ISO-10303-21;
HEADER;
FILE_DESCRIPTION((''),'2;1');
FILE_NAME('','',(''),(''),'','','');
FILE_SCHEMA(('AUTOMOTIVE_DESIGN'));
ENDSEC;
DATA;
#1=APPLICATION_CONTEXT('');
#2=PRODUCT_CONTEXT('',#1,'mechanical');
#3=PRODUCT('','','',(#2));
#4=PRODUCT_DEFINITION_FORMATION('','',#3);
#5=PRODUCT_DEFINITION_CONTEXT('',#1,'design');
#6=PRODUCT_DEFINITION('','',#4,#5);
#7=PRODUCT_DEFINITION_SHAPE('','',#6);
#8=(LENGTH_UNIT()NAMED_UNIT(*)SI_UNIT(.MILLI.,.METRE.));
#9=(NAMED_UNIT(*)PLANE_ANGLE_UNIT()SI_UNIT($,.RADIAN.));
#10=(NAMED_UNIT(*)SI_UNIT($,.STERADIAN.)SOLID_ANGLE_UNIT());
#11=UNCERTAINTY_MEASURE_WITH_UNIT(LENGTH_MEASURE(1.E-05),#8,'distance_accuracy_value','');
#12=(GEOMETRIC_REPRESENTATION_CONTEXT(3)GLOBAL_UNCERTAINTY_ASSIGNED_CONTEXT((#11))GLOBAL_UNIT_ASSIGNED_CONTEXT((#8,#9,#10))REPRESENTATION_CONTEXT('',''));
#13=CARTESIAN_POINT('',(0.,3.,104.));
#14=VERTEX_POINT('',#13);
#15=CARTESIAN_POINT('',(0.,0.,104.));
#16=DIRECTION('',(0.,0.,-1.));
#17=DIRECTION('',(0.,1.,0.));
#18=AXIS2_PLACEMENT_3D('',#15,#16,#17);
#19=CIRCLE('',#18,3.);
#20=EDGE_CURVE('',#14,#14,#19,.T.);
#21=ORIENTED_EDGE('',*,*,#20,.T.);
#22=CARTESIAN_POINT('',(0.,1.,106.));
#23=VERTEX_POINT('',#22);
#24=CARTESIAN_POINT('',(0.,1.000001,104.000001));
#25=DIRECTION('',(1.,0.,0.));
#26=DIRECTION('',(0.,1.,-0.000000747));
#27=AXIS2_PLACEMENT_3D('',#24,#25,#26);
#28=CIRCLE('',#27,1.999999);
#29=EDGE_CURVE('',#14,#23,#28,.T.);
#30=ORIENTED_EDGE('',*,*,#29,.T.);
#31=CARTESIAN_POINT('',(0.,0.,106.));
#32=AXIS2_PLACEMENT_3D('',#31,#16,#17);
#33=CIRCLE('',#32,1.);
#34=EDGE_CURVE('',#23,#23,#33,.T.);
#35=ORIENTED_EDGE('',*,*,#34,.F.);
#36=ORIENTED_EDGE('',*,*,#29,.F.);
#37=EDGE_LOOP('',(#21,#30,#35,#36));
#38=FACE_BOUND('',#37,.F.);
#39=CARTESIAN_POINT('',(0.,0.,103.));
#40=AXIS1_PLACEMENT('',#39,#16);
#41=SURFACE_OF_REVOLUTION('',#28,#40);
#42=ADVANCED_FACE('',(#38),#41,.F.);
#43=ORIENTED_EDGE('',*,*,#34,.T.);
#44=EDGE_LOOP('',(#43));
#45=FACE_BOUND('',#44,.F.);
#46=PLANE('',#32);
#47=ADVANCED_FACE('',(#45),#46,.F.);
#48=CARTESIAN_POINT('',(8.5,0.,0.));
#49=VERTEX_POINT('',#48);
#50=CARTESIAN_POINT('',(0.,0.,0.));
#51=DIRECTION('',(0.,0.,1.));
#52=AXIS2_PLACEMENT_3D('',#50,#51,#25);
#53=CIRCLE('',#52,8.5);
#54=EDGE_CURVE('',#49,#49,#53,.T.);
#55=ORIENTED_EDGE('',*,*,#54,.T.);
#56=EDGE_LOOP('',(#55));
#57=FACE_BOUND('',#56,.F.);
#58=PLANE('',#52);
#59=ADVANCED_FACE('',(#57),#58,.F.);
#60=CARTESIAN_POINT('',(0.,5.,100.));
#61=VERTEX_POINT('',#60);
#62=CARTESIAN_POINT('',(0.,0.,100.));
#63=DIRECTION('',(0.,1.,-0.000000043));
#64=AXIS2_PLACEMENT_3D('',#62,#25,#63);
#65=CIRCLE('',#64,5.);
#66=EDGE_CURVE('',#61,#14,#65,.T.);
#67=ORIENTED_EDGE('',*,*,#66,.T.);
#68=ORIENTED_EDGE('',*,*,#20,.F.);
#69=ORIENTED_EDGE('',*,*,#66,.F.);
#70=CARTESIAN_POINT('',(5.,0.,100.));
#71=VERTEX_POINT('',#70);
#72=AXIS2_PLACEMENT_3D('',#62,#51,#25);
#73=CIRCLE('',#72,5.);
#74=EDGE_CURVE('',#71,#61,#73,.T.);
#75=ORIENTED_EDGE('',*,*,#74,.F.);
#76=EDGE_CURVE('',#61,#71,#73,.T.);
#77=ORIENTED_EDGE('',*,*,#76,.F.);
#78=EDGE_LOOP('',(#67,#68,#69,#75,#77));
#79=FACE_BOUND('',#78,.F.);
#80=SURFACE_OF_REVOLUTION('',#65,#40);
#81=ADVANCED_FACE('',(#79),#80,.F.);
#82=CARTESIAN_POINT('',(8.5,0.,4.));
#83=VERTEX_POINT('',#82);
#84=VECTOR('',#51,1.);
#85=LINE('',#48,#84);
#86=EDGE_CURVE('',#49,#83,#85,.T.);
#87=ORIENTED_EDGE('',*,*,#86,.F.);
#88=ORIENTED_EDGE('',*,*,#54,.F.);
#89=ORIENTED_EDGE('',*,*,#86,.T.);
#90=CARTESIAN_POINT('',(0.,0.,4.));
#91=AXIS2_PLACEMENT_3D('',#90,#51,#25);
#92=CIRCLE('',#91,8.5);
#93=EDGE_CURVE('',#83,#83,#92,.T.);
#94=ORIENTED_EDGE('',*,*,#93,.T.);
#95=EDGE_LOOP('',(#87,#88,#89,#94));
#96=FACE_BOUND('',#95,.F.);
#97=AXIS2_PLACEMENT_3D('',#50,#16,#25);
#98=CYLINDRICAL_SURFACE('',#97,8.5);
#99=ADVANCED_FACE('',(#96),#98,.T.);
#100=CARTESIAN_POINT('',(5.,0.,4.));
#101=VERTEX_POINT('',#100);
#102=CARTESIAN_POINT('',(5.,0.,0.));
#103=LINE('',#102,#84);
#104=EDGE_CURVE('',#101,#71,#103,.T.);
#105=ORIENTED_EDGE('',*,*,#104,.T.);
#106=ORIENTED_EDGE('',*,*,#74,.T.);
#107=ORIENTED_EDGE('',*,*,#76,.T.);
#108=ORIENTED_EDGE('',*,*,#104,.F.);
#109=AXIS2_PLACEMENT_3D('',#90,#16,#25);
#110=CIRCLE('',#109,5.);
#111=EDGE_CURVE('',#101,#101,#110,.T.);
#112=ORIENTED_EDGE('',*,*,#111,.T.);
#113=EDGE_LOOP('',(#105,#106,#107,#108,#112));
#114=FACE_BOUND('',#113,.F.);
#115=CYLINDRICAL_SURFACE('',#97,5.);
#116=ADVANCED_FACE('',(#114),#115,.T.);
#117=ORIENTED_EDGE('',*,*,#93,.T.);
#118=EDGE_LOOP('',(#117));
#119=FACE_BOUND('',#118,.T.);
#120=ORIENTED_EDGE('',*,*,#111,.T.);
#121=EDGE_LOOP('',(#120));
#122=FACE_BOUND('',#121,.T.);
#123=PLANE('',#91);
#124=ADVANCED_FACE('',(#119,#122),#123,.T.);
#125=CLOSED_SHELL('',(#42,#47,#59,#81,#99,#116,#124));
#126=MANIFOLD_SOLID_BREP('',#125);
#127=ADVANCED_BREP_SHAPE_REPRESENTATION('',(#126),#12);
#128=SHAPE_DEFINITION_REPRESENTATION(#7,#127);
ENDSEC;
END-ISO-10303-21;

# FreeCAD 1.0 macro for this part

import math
import FreeCAD as App
import Part
import Sketcher
from FreeCAD import Vector

doc = App.newDocument("Part")
params = doc.addObject("Spreadsheet::Sheet", "Params")
for row, (alias, value) in enumerate([
    ("sketch1_diameter", "17 mm"),
    ("pad1_length", "4 mm"),
    ("sketch2_diameter", "10 mm"),
    ("pad2_length", "100 mm"),
    ("sketch3_radius", "5 mm"),
    ("sketch3_radius2", "1.999999 mm"),
    ("sketch3_width", "1 mm"),
    ("revolution_angle", "360 deg"),
], start=1):
    params.set(f"A{row}", alias)
    params.set(f"B{row}", "=" + value)
    params.setAlias(f"B{row}", alias)

body = doc.addObject("PartDesign::Body", "Body")

sketch1 = body.newObject("Sketcher::SketchObject", "Sketch")
sketch1.AttachmentSupport = (doc.getObject("XY_Plane"), [""])
sketch1.MapMode = "FlatFace"
sketch1.addGeometry(Part.Circle(Vector(0, 0, 0), Vector(0, 0, 1), 8.5), False)
sketch1.addConstraint(Sketcher.Constraint("Coincident", 0, 3, -1, 1))
sketch1.addConstraint(Sketcher.Constraint("Diameter", 0, 17.0))
sketch1.setExpression("Constraints[1]", "Params.sketch1_diameter")
pad1 = body.newObject("PartDesign::Pad", "Pad")
pad1.Profile = sketch1
pad1.setExpression("Length", "Params.pad1_length")

sketch2 = body.newObject("Sketcher::SketchObject", "Sketch001")
sketch2.AttachmentSupport = (doc.getObject("XY_Plane"), [""])
sketch2.MapMode = "FlatFace"
sketch2.addGeometry(Part.Circle(Vector(0, 0, 0), Vector(0, 0, 1), 5), False)
sketch2.addConstraint(Sketcher.Constraint("Coincident", 0, 3, -1, 1))
sketch2.addConstraint(Sketcher.Constraint("Diameter", 0, 10.0))
sketch2.setExpression("Constraints[1]", "Params.sketch2_diameter")
pad2 = body.newObject("PartDesign::Pad", "Pad001")
pad2.Profile = sketch2
pad2.setExpression("Length", "Params.pad2_length")

sketch3 = body.newObject("Sketcher::SketchObject", "Sketch002")
sketch3.AttachmentSupport = (doc.getObject("YZ_Plane"), [""])
sketch3.MapMode = "FlatFace"
sketch3.addGeometry(Part.LineSegment(Vector(0, 100, 0), Vector(5, 100, 0)), False)
sketch3.addGeometry(Part.ArcOfCircle(Part.Circle(Vector(0, 100, 0), Vector(0, 0, 1), 5), math.radians(-0.000002), math.radians(53.130105)), False)
sketch3.addGeometry(Part.ArcOfCircle(Part.Circle(Vector(1.000001, 104.000001, 0), Vector(0, 0, 1), 1.999999), math.radians(-0.000043), math.radians(90.000043)), False)
sketch3.addGeometry(Part.LineSegment(Vector(1, 106, 0), Vector(0, 106, 0)), False)
sketch3.addGeometry(Part.LineSegment(Vector(0, 106, 0), Vector(0, 100, 0)), False)
sketch3.addConstraint(Sketcher.Constraint("Coincident", 0, 2, 1, 1))
sketch3.addConstraint(Sketcher.Constraint("Coincident", 1, 2, 2, 1))
sketch3.addConstraint(Sketcher.Constraint("Tangent", 2, 2, 3, 1))
sketch3.addConstraint(Sketcher.Constraint("Coincident", 3, 2, 4, 1))
sketch3.addConstraint(Sketcher.Constraint("Coincident", 4, 2, 0, 1))
sketch3.addConstraint(Sketcher.Constraint("Horizontal", 0))
sketch3.addConstraint(Sketcher.Constraint("Horizontal", 3))
sketch3.addConstraint(Sketcher.Constraint("Vertical", 4))
sketch3.addConstraint(Sketcher.Constraint("Coincident", 4, 2, 1, 3))
sketch3.addConstraint(Sketcher.Constraint("PointOnObject", 1, 3, -2))
sketch3.addConstraint(Sketcher.Constraint("Horizontal", 2, 3, 1, 2))
sketch3.addConstraint(Sketcher.Constraint("Radius", 1, 5.0))
sketch3.addConstraint(Sketcher.Constraint("Radius", 2, 1.999999))
sketch3.addConstraint(Sketcher.Constraint("DistanceX", 3, 2, 3, 1, 1.0))
sketch3.addConstraint(Sketcher.Constraint("DistanceY", -1, 1, 1, 3, 100.0))
sketch3.setExpression("Constraints[11]", "Params.sketch3_radius")
sketch3.setExpression("Constraints[12]", "Params.sketch3_radius2")
sketch3.setExpression("Constraints[13]", "Params.sketch3_width")
revolution = body.newObject("PartDesign::Revolution", "Revolution")
revolution.Profile = sketch3
revolution.ReferenceAxis = (sketch3, ["V_Axis"])
revolution.setExpression("Angle", "Params.revolution_angle")

doc.recompute()
